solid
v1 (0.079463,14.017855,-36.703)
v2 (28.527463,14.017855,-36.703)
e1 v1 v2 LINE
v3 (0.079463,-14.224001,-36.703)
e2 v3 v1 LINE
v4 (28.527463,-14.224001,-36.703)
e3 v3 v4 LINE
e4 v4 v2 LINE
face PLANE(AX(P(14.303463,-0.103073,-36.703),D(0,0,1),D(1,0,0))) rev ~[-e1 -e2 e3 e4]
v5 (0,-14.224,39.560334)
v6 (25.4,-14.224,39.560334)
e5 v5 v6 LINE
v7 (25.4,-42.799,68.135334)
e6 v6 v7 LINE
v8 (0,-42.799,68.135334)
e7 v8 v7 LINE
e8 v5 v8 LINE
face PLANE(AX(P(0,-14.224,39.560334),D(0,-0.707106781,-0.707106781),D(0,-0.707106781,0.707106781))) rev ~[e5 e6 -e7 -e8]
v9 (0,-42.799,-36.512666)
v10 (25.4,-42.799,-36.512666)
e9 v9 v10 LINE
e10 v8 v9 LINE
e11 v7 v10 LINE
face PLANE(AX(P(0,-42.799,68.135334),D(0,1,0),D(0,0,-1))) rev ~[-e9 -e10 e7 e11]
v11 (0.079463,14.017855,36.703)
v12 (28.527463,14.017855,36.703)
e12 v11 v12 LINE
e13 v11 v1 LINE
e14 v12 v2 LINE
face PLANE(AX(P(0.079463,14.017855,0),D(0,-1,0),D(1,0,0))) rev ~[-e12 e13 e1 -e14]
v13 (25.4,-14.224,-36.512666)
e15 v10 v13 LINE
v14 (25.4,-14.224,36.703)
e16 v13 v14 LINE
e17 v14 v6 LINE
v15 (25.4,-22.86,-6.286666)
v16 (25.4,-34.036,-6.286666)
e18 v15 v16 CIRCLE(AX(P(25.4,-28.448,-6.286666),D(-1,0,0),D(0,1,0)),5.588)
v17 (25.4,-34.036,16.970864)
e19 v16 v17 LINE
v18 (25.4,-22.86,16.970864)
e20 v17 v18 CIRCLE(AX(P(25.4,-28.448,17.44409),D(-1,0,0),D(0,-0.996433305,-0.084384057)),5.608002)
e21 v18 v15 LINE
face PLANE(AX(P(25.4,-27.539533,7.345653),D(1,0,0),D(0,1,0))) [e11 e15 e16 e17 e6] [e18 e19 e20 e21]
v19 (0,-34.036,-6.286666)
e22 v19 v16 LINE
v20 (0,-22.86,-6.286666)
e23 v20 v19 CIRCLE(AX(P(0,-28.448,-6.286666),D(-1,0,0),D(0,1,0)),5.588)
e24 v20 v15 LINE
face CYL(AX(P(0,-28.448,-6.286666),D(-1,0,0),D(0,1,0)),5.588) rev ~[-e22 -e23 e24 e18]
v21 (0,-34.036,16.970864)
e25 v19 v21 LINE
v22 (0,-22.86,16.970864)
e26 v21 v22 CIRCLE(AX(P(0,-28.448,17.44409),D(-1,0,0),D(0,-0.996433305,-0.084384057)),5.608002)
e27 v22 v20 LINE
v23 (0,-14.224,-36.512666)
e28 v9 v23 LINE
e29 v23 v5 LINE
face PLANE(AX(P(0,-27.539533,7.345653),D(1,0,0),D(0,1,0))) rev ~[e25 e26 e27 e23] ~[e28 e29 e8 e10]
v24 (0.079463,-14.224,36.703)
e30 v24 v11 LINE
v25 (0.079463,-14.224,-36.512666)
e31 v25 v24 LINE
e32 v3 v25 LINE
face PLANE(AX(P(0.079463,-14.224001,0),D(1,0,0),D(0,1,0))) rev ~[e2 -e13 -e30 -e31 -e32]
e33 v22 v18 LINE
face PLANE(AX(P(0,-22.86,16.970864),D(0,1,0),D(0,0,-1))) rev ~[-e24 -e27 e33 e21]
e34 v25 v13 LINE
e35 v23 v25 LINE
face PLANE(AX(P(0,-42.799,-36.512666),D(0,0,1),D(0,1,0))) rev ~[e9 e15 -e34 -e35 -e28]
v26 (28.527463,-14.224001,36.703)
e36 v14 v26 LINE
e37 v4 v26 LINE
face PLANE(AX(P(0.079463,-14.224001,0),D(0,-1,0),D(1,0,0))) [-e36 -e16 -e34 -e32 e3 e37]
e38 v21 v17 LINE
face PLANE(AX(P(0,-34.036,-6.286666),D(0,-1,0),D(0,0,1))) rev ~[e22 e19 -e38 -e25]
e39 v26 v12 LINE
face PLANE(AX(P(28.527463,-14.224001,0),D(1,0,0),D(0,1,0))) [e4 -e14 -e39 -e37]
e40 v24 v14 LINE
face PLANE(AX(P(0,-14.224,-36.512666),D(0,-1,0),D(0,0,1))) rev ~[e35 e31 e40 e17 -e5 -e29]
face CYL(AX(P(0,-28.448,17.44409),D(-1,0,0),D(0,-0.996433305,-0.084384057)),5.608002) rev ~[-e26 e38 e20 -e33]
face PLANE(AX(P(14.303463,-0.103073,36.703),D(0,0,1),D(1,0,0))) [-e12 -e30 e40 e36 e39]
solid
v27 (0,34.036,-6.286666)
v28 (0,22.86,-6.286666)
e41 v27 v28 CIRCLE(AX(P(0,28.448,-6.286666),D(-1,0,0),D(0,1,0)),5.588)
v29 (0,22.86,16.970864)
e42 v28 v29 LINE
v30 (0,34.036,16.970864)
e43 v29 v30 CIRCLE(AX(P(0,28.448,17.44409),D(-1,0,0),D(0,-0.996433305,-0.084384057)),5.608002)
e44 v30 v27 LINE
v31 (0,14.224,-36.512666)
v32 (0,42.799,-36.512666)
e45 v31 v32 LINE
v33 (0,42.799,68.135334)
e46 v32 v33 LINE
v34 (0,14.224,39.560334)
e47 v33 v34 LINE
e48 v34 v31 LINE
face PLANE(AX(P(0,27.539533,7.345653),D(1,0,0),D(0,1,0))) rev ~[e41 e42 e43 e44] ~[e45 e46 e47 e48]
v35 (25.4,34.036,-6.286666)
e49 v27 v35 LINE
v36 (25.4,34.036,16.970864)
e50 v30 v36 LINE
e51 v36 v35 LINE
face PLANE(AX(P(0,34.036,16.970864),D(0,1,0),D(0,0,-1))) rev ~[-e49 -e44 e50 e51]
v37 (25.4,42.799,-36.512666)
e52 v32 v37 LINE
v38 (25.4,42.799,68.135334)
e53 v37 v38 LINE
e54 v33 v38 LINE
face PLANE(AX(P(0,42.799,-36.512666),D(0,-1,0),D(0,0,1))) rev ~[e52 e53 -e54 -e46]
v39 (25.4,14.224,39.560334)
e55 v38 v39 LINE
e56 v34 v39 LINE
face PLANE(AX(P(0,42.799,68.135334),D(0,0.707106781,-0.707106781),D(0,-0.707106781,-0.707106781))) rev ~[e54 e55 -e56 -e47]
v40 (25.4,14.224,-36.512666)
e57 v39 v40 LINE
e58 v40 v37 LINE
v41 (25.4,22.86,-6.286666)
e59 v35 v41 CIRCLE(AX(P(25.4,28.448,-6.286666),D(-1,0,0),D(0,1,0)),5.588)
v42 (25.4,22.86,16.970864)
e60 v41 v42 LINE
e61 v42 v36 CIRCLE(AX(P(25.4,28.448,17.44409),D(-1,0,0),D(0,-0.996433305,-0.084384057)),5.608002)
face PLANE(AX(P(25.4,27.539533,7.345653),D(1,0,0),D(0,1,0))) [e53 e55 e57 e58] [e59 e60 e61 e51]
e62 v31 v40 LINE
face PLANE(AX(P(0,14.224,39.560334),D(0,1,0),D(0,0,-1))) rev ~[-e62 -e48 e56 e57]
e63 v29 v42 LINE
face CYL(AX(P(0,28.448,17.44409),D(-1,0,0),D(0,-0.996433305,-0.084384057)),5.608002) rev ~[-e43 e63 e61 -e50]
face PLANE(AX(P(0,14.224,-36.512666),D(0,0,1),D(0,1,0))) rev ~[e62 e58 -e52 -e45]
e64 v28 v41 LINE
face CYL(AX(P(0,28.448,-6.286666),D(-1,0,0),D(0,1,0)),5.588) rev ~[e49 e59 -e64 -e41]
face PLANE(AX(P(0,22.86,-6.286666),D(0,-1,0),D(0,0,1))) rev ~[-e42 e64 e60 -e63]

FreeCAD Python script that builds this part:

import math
import FreeCAD as App
import Part
import Sketcher

V = App.Vector
Q = App.Units.Quantity

doc = App.newDocument("Part")
params = doc.addObject("Spreadsheet::Sheet", "Params")
for row, (alias, value) in enumerate([
    ("sketch1_width", "1.12 in"),
    ("pad1_length", "2.89 in"),
    ("sketch2_radius", "0.22 in"),
    ("sketch2_height", "4.12 in"),
    ("sketch2_width", "1.125 in"),
    ("pad2_length", "1 in"),
], start=1):
    params.set(f"A{row}", alias)
    params.set(f"B{row}", "=" + value)
    params.setAlias(f"B{row}", alias)

body = doc.addObject("PartDesign::Body", "Body")
body.AllowCompound = True

sketch1 = body.newObject("Sketcher::SketchObject", "Sketch")
sketch1.AttachmentSupport = (doc.getObject("XY_Plane"), [""])
sketch1.MapMode = "FlatFace"
sketch1.addGeometry([
    Part.LineSegment(V(0, 14, 0), V(0, -14, 0)),
    Part.LineSegment(V(0, -14, 0), V(29, -14, 0)),
    Part.LineSegment(V(29, -14, 0), V(29, 14, 0)),
    Part.LineSegment(V(29, 14, 0), V(0, 14, 0)),
], False)
sketch1.addConstraint([
    Sketcher.Constraint("Coincident", 0, 2, 1, 1),
    Sketcher.Constraint("Coincident", 1, 2, 2, 1),
    Sketcher.Constraint("Coincident", 2, 2, 3, 1),
    Sketcher.Constraint("Coincident", 3, 2, 0, 1),
    Sketcher.Constraint("Vertical", 0),
    Sketcher.Constraint("Horizontal", 1),
    Sketcher.Constraint("Vertical", 2),
    Sketcher.Constraint("Horizontal", 3),
    Sketcher.Constraint("DistanceX", 1, 1, 1, 2, Q("1.12 in")),
    Sketcher.Constraint("DistanceY", 0, 2, -1, 1, Q("0.56 in")),
    Sketcher.Constraint("DistanceY", 0, 2, 0, 1, Q("28.241855 mm")),
    Sketcher.Constraint("DistanceX", -1, 1, 0, 2, Q("0.079463 mm")),
])
sketch1.setExpression("Constraints[8]", "Params.sketch1_width")
pad1 = body.newObject("PartDesign::Pad", "Pad")
pad1.Profile = sketch1
pad1.setExpression("Length", "Params.pad1_length")
pad1.Midplane = True

sketch2 = body.newObject("Sketcher::SketchObject", "Sketch001")
sketch2.AttachmentSupport = (doc.getObject("YZ_Plane"), [""])
sketch2.MapMode = "FlatFace"
sketch2.addGeometry([
    Part.LineSegment(V(-14, 40, 0), V(-43, 68, 0)),
    Part.LineSegment(V(-43, 68, 0), V(-43, -37, 0)),
    Part.LineSegment(V(-43, -37, 0), V(-14, -37, 0)),
    Part.LineSegment(V(-14, -37, 0), V(-14, 40, 0)),
    Part.LineSegment(V(-23, 17, 0), V(-23, -6, 0)),
    Part.ArcOfCircle(Part.Circle(V(-28, -6, 0), V(0, 0, 1), 6), math.radians(180), math.radians(360)),
    Part.LineSegment(V(-34, -6, 0), V(-34, 17, 0)),
    Part.ArcOfCircle(Part.Circle(V(-28, 17, 0), V(0, 0, 1), 6), math.radians(-5), math.radians(185)),
    Part.LineSegment(V(14, 40, 0), V(14, -37, 0)),
    Part.LineSegment(V(14, -37, 0), V(43, -37, 0)),
    Part.LineSegment(V(43, -37, 0), V(43, 68, 0)),
    Part.LineSegment(V(43, 68, 0), V(14, 40, 0)),
    Part.ArcOfCircle(Part.Circle(V(28, -6, 0), V(0, 0, 1), 6), math.radians(180), math.radians(360)),
    Part.LineSegment(V(23, -6, 0), V(23, 17, 0)),
    Part.ArcOfCircle(Part.Circle(V(28, 17, 0), V(0, 0, 1), 6), math.radians(-5), math.radians(185)),
    Part.LineSegment(V(34, 17, 0), V(34, -6, 0)),
], False)
sketch2.addConstraint([
    Sketcher.Constraint("Coincident", 0, 2, 1, 1),
    Sketcher.Constraint("Coincident", 1, 2, 2, 1),
    Sketcher.Constraint("Coincident", 2, 2, 3, 1),
    Sketcher.Constraint("Coincident", 3, 2, 0, 1),
    Sketcher.Constraint("Tangent", 4, 2, 5, 2),
    Sketcher.Constraint("Tangent", 5, 1, 6, 1),
    Sketcher.Constraint("Coincident", 6, 2, 7, 2),
    Sketcher.Constraint("Coincident", 7, 1, 4, 1),
    Sketcher.Constraint("Coincident", 8, 2, 9, 1),
    Sketcher.Constraint("Coincident", 9, 2, 10, 1),
    Sketcher.Constraint("Coincident", 10, 2, 11, 1),
    Sketcher.Constraint("Coincident", 11, 2, 8, 1),
    Sketcher.Constraint("Tangent", 12, 1, 13, 1),
    Sketcher.Constraint("Coincident", 13, 2, 14, 2),
    Sketcher.Constraint("Coincident", 14, 1, 15, 1),
    Sketcher.Constraint("Tangent", 15, 2, 12, 2),
    Sketcher.Constraint("Vertical", 1),
    Sketcher.Constraint("Horizontal", 2),
    Sketcher.Constraint("Vertical", 3),
    Sketcher.Constraint("Vertical", 4),
    Sketcher.Constraint("Vertical", 6),
    Sketcher.Constraint("Vertical", 8),
    Sketcher.Constraint("Horizontal", 9),
    Sketcher.Constraint("Vertical", 10),
    Sketcher.Constraint("Vertical", 13),
    Sketcher.Constraint("Vertical", 15),
    Sketcher.Constraint("Equal", 5, 12),
    Sketcher.Constraint("Equal", 7, 14),
    Sketcher.Constraint("Symmetric", 5, 3, 12, 3, -2),
    Sketcher.Constraint("Symmetric", 7, 3, 14, 3, -2),
    Sketcher.Constraint("Symmetric", 2, 2, 8, 2, -2),
    Sketcher.Constraint("Symmetric", 0, 2, 10, 2, -2),
    Sketcher.Constraint("Perpendicular", 0, 11),
    Sketcher.Constraint("Horizontal", 6, 2, 7, 1),
    Sketcher.Constraint("Horizontal", 3, 2, 11, 2),
    Sketcher.Constraint("Radius", 5, Q("0.22 in")),
    Sketcher.Constraint("DistanceY", 1, 2, 1, 1, Q("4.12 in")),
    Sketcher.Constraint("DistanceX", 4, 2, -1, 1, Q("0.9 in")),
    Sketcher.Constraint("DistanceX", 2, 1, 2, 2, Q("1.125 in")),
    Sketcher.Constraint("DistanceX", 2, 2, -1, 1, Q("0.56 in")),
    Sketcher.Constraint("DistanceY", 5, 3, 0, 2, Q("2.93 in")),
    Sketcher.Constraint("Radius", 7, Q("5.608002 mm")),
    Sketcher.Constraint("DistanceY", 4, 2, 4, 1, Q("23.25753 mm")),
    Sketcher.Constraint("DistanceY", -1, 1, 7, 3, Q("17.44409 mm")),
])
sketch2.setExpression("Constraints[35]", "Params.sketch2_radius")
sketch2.setExpression("Constraints[36]", "Params.sketch2_height")
sketch2.setExpression("Constraints[38]", "Params.sketch2_width")
pad2 = body.newObject("PartDesign::Pad", "Pad001")
pad2.Profile = sketch2
pad2.setExpression("Length", "Params.pad2_length")

doc.recompute()
